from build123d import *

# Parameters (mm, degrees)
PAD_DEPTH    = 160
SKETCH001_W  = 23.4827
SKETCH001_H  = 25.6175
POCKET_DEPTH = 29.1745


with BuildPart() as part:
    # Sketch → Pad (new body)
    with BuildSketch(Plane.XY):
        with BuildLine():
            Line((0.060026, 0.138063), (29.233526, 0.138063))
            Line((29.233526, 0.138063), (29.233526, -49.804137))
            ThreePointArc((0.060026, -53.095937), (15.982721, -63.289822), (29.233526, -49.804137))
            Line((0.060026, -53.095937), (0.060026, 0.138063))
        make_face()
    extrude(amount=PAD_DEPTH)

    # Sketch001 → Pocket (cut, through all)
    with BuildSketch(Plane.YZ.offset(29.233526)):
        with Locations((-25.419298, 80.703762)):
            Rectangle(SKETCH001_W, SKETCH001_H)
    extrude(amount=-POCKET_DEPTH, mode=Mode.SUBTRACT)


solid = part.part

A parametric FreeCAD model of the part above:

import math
import FreeCAD as App
import Part
import Sketcher

doc = App.newDocument("Part")
body = doc.addObject("PartDesign::Body", "Body")

sketch1 = body.newObject("Sketcher::SketchObject", "Sketch")
sketch1.AttachmentSupport = (doc.getObject("XY_Plane"), [""])
sketch1.MapMode = "FlatFace"
sketch1.addGeometry([
    Part.LineSegment(App.Vector(29, 0, 0), App.Vector(0, 0, 0)),
    Part.LineSegment(App.Vector(0, 0, 0), App.Vector(0, -53, 0)),
    Part.ArcOfCircle(Part.Circle(App.Vector(14, -48, 0), App.Vector(0, 0, 1), 15), math.radians(-162), math.radians(-5)),
    Part.LineSegment(App.Vector(29, -50, 0), App.Vector(29, 0, 0)),
], False)
sketch1.addConstraint([
    Sketcher.Constraint("Coincident", 0, 2, 1, 1),
    Sketcher.Constraint("Coincident", 1, 2, 2, 1),
    Sketcher.Constraint("Coincident", 2, 2, 3, 1),
    Sketcher.Constraint("Coincident", 3, 2, 0, 1),
    Sketcher.Constraint("Horizontal", 0),
    Sketcher.Constraint("Vertical", 1),
    Sketcher.Constraint("Vertical", 3),
    Sketcher.Constraint("Radius", 2, 15.0),
    Sketcher.Constraint("DistanceY", 1, 2, 1, 1, 53.234),
    Sketcher.Constraint("DistanceX", 0, 2, 0, 1, 29.1735),
    Sketcher.Constraint("DistanceY", 3, 1, 3, 2, 49.9422),
    Sketcher.Constraint("DistanceY", 2, 3, -1, 1, 48.384408),
    Sketcher.Constraint("DistanceX", -1, 1, 2, 3, 14.300865),
])
pad1 = body.newObject("PartDesign::Pad", "Pad")
pad1.Profile = sketch1
pad1.Length = 160

sketch2 = body.newObject("Sketcher::SketchObject", "Sketch001")
sketch2.AttachmentSupport = (doc.getObject("YZ_Plane"), [""])
sketch2.MapMode = "FlatFace"
sketch2.AttachmentOffset = App.Placement(App.Vector(0, 0, 29.233526), App.Rotation())
sketch2.addGeometry([
    Part.LineSegment(App.Vector(-37, 94, 0), App.Vector(-37, 68, 0)),
    Part.LineSegment(App.Vector(-37, 68, 0), App.Vector(-14, 68, 0)),
    Part.LineSegment(App.Vector(-14, 68, 0), App.Vector(-14, 94, 0)),
    Part.LineSegment(App.Vector(-14, 94, 0), App.Vector(-37, 94, 0)),
], False)
sketch2.addConstraint([
    Sketcher.Constraint("Coincident", 0, 2, 1, 1),
    Sketcher.Constraint("Coincident", 1, 2, 2, 1),
    Sketcher.Constraint("Coincident", 2, 2, 3, 1),
    Sketcher.Constraint("Coincident", 3, 2, 0, 1),
    Sketcher.Constraint("Vertical", 0),
    Sketcher.Constraint("Horizontal", 1),
    Sketcher.Constraint("Vertical", 2),
    Sketcher.Constraint("Horizontal", 3),
    Sketcher.Constraint("DistanceX", 1, 1, 1, 2, 23.4827),
    Sketcher.Constraint("DistanceY", 0, 2, 0, 1, 25.6175),
    Sketcher.Constraint("DistanceX", 0, 2, -1, 1, 37.160648),
    Sketcher.Constraint("DistanceY", -1, 1, 0, 2, 67.895012),
])
pocket1 = body.newObject("PartDesign::Pocket", "Pocket")
pocket1.Profile = sketch2
pocket1.Type = "ThroughAll"

doc.recompute()
